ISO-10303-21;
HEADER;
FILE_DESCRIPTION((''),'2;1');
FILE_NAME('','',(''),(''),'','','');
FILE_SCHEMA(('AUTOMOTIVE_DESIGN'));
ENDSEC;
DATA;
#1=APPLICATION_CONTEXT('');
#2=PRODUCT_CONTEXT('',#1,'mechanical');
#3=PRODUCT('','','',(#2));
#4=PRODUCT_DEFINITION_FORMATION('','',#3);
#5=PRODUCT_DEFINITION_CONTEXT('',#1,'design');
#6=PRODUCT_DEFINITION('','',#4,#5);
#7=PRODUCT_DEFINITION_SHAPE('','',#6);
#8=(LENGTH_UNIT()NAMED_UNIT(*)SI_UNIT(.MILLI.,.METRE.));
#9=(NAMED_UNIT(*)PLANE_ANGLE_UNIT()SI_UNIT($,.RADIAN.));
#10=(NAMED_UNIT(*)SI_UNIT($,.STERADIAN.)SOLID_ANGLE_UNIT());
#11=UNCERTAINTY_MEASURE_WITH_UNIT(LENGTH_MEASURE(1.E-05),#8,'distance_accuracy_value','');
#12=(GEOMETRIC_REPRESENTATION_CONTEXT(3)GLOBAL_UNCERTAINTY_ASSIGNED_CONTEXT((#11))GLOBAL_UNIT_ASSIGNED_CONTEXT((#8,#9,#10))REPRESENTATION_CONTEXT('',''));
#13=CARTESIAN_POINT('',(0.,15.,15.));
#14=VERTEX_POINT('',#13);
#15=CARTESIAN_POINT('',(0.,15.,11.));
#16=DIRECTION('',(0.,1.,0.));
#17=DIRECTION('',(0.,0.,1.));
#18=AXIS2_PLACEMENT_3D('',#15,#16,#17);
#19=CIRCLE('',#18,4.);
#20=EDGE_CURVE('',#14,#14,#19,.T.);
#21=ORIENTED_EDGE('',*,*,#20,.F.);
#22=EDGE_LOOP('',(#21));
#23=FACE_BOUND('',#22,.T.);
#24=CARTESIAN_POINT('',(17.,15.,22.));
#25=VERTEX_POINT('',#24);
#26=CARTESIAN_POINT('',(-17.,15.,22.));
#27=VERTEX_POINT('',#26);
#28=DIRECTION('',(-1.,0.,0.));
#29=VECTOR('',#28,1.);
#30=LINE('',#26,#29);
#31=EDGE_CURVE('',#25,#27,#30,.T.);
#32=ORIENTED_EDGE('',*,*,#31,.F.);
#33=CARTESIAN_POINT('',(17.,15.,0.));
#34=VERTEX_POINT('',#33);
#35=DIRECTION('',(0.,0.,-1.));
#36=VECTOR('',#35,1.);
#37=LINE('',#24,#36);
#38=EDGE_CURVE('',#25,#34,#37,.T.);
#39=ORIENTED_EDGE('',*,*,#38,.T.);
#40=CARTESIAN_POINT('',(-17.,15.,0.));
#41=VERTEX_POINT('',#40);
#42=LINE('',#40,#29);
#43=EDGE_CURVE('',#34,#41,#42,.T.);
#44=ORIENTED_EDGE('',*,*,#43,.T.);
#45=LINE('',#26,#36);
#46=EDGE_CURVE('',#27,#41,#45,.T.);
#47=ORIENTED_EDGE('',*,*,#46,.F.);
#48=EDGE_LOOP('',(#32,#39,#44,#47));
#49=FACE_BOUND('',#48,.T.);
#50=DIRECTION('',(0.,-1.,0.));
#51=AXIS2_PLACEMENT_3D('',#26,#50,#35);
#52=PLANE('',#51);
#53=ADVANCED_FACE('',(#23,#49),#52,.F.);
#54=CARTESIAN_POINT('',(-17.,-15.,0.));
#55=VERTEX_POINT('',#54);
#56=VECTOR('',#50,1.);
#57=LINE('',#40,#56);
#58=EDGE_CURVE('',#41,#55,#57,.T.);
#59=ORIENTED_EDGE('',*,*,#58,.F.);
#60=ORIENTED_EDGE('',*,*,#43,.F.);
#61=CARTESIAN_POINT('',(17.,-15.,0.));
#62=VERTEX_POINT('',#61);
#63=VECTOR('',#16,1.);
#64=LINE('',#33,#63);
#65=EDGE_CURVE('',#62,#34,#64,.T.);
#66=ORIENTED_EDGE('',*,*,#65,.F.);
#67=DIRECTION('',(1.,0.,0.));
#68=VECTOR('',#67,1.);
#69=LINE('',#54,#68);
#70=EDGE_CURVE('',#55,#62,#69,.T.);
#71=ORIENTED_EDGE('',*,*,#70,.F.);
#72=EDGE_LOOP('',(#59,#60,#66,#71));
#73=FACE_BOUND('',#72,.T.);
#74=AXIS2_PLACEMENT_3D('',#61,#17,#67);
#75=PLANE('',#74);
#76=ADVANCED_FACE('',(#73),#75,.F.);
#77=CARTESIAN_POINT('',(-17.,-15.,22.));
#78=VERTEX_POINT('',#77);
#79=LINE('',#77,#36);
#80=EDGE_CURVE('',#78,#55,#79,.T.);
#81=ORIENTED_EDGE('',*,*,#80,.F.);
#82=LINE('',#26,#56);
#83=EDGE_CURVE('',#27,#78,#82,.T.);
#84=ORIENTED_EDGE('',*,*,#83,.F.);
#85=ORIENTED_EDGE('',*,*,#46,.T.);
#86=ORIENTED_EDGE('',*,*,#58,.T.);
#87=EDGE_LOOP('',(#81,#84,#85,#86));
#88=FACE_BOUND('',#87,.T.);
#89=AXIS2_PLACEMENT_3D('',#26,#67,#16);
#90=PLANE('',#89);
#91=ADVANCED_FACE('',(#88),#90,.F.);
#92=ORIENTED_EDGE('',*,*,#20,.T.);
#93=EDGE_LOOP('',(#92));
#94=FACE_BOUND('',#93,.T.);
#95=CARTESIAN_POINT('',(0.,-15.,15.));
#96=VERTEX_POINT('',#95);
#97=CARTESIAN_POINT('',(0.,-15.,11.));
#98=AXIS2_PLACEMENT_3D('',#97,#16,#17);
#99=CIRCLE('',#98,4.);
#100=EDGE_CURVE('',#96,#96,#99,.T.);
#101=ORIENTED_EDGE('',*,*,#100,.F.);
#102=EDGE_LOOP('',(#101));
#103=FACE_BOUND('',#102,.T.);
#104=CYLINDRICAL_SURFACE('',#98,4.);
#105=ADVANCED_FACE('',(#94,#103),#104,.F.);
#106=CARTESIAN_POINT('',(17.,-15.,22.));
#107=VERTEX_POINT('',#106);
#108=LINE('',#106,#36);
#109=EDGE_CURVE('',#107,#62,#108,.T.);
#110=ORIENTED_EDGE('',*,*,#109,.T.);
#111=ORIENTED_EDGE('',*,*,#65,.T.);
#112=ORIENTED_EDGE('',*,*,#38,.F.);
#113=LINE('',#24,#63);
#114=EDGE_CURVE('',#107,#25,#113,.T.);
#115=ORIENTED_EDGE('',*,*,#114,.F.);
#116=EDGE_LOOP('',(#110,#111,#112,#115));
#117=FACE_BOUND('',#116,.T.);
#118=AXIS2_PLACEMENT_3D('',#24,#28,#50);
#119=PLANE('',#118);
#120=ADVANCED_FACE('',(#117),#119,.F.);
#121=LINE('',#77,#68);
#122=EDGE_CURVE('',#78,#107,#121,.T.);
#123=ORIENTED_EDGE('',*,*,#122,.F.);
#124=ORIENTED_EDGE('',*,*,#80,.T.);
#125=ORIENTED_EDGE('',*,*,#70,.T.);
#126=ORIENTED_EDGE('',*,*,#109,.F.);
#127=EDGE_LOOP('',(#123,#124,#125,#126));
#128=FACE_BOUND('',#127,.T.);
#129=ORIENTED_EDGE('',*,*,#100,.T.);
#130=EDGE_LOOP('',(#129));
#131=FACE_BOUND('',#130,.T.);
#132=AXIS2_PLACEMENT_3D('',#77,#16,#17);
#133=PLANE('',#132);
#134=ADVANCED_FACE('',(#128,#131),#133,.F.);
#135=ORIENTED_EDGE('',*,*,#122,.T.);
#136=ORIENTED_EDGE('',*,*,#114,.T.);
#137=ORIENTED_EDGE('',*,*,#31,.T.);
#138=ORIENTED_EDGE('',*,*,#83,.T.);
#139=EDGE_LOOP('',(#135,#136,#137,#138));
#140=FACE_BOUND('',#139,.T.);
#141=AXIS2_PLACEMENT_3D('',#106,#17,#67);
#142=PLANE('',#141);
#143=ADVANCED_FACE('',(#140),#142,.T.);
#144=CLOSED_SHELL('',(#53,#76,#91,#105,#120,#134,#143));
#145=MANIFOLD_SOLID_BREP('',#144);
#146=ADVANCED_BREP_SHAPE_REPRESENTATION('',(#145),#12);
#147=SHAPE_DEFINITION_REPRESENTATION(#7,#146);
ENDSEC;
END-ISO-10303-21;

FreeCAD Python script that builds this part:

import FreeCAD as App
import Part
import Sketcher
from FreeCAD import Vector

doc = App.newDocument("Part")
body = doc.addObject("PartDesign::Body", "Body")

# Sketch on XY plane
sketch1 = body.newObject("Sketcher::SketchObject", "Sketch")
sketch1.AttachmentSupport = (doc.getObject("XY_Plane"), [""])
sketch1.MapMode = "FlatFace"
sketch1.addGeometry([
    Part.LineSegment(Vector(-17, 15, 0), Vector(-17, -15, 0)),
    Part.LineSegment(Vector(-17, -15, 0), Vector(17, -15, 0)),
    Part.LineSegment(Vector(17, -15, 0), Vector(17, 15, 0)),
    Part.LineSegment(Vector(17, 15, 0), Vector(-17, 15, 0)),
], False)
sketch1.addConstraint([
    Sketcher.Constraint("Coincident", 0, 2, 1, 1),
    Sketcher.Constraint("Coincident", 1, 2, 2, 1),
    Sketcher.Constraint("Coincident", 2, 2, 3, 1),
    Sketcher.Constraint("Coincident", 3, 2, 0, 1),
    Sketcher.Constraint("Vertical", 0),
    Sketcher.Constraint("Horizontal", 1),
    Sketcher.Constraint("Vertical", 2),
    Sketcher.Constraint("Horizontal", 3),
    Sketcher.Constraint("Symmetric", 0, 2, 2, 2, -1, 1),
    Sketcher.Constraint("DistanceX", 1, 1, 1, 2, 34.0),
    Sketcher.Constraint("DistanceY", 0, 2, 0, 1, 30.0),
])
pad1 = body.newObject("PartDesign::Pad", "Pad")
pad1.Profile = sketch1
pad1.Length = 22

# Sketch on XZ plane
sketch2 = body.newObject("Sketcher::SketchObject", "Sketch001")
sketch2.AttachmentSupport = (doc.getObject("XZ_Plane"), [""])
sketch2.MapMode = "FlatFace"
sketch2.AttachmentOffset = App.Placement(Vector(0, 0, -15), App.Rotation())
sketch2.addGeometry(Part.Circle(Vector(0, 11, 0), Vector(0, 0, 1), 4), False)
sketch2.addConstraint([
    Sketcher.Constraint("PointOnObject", 0, 3, -2),
    Sketcher.Constraint("Diameter", 0, 8.0),
    Sketcher.Constraint("DistanceY", -1, 1, 0, 3, 11.0),
])
pocket1 = body.newObject("PartDesign::Pocket", "Pocket")
pocket1.Profile = sketch2
pocket1.Length = 30
pocket1.Reversed = True

doc.recompute()
